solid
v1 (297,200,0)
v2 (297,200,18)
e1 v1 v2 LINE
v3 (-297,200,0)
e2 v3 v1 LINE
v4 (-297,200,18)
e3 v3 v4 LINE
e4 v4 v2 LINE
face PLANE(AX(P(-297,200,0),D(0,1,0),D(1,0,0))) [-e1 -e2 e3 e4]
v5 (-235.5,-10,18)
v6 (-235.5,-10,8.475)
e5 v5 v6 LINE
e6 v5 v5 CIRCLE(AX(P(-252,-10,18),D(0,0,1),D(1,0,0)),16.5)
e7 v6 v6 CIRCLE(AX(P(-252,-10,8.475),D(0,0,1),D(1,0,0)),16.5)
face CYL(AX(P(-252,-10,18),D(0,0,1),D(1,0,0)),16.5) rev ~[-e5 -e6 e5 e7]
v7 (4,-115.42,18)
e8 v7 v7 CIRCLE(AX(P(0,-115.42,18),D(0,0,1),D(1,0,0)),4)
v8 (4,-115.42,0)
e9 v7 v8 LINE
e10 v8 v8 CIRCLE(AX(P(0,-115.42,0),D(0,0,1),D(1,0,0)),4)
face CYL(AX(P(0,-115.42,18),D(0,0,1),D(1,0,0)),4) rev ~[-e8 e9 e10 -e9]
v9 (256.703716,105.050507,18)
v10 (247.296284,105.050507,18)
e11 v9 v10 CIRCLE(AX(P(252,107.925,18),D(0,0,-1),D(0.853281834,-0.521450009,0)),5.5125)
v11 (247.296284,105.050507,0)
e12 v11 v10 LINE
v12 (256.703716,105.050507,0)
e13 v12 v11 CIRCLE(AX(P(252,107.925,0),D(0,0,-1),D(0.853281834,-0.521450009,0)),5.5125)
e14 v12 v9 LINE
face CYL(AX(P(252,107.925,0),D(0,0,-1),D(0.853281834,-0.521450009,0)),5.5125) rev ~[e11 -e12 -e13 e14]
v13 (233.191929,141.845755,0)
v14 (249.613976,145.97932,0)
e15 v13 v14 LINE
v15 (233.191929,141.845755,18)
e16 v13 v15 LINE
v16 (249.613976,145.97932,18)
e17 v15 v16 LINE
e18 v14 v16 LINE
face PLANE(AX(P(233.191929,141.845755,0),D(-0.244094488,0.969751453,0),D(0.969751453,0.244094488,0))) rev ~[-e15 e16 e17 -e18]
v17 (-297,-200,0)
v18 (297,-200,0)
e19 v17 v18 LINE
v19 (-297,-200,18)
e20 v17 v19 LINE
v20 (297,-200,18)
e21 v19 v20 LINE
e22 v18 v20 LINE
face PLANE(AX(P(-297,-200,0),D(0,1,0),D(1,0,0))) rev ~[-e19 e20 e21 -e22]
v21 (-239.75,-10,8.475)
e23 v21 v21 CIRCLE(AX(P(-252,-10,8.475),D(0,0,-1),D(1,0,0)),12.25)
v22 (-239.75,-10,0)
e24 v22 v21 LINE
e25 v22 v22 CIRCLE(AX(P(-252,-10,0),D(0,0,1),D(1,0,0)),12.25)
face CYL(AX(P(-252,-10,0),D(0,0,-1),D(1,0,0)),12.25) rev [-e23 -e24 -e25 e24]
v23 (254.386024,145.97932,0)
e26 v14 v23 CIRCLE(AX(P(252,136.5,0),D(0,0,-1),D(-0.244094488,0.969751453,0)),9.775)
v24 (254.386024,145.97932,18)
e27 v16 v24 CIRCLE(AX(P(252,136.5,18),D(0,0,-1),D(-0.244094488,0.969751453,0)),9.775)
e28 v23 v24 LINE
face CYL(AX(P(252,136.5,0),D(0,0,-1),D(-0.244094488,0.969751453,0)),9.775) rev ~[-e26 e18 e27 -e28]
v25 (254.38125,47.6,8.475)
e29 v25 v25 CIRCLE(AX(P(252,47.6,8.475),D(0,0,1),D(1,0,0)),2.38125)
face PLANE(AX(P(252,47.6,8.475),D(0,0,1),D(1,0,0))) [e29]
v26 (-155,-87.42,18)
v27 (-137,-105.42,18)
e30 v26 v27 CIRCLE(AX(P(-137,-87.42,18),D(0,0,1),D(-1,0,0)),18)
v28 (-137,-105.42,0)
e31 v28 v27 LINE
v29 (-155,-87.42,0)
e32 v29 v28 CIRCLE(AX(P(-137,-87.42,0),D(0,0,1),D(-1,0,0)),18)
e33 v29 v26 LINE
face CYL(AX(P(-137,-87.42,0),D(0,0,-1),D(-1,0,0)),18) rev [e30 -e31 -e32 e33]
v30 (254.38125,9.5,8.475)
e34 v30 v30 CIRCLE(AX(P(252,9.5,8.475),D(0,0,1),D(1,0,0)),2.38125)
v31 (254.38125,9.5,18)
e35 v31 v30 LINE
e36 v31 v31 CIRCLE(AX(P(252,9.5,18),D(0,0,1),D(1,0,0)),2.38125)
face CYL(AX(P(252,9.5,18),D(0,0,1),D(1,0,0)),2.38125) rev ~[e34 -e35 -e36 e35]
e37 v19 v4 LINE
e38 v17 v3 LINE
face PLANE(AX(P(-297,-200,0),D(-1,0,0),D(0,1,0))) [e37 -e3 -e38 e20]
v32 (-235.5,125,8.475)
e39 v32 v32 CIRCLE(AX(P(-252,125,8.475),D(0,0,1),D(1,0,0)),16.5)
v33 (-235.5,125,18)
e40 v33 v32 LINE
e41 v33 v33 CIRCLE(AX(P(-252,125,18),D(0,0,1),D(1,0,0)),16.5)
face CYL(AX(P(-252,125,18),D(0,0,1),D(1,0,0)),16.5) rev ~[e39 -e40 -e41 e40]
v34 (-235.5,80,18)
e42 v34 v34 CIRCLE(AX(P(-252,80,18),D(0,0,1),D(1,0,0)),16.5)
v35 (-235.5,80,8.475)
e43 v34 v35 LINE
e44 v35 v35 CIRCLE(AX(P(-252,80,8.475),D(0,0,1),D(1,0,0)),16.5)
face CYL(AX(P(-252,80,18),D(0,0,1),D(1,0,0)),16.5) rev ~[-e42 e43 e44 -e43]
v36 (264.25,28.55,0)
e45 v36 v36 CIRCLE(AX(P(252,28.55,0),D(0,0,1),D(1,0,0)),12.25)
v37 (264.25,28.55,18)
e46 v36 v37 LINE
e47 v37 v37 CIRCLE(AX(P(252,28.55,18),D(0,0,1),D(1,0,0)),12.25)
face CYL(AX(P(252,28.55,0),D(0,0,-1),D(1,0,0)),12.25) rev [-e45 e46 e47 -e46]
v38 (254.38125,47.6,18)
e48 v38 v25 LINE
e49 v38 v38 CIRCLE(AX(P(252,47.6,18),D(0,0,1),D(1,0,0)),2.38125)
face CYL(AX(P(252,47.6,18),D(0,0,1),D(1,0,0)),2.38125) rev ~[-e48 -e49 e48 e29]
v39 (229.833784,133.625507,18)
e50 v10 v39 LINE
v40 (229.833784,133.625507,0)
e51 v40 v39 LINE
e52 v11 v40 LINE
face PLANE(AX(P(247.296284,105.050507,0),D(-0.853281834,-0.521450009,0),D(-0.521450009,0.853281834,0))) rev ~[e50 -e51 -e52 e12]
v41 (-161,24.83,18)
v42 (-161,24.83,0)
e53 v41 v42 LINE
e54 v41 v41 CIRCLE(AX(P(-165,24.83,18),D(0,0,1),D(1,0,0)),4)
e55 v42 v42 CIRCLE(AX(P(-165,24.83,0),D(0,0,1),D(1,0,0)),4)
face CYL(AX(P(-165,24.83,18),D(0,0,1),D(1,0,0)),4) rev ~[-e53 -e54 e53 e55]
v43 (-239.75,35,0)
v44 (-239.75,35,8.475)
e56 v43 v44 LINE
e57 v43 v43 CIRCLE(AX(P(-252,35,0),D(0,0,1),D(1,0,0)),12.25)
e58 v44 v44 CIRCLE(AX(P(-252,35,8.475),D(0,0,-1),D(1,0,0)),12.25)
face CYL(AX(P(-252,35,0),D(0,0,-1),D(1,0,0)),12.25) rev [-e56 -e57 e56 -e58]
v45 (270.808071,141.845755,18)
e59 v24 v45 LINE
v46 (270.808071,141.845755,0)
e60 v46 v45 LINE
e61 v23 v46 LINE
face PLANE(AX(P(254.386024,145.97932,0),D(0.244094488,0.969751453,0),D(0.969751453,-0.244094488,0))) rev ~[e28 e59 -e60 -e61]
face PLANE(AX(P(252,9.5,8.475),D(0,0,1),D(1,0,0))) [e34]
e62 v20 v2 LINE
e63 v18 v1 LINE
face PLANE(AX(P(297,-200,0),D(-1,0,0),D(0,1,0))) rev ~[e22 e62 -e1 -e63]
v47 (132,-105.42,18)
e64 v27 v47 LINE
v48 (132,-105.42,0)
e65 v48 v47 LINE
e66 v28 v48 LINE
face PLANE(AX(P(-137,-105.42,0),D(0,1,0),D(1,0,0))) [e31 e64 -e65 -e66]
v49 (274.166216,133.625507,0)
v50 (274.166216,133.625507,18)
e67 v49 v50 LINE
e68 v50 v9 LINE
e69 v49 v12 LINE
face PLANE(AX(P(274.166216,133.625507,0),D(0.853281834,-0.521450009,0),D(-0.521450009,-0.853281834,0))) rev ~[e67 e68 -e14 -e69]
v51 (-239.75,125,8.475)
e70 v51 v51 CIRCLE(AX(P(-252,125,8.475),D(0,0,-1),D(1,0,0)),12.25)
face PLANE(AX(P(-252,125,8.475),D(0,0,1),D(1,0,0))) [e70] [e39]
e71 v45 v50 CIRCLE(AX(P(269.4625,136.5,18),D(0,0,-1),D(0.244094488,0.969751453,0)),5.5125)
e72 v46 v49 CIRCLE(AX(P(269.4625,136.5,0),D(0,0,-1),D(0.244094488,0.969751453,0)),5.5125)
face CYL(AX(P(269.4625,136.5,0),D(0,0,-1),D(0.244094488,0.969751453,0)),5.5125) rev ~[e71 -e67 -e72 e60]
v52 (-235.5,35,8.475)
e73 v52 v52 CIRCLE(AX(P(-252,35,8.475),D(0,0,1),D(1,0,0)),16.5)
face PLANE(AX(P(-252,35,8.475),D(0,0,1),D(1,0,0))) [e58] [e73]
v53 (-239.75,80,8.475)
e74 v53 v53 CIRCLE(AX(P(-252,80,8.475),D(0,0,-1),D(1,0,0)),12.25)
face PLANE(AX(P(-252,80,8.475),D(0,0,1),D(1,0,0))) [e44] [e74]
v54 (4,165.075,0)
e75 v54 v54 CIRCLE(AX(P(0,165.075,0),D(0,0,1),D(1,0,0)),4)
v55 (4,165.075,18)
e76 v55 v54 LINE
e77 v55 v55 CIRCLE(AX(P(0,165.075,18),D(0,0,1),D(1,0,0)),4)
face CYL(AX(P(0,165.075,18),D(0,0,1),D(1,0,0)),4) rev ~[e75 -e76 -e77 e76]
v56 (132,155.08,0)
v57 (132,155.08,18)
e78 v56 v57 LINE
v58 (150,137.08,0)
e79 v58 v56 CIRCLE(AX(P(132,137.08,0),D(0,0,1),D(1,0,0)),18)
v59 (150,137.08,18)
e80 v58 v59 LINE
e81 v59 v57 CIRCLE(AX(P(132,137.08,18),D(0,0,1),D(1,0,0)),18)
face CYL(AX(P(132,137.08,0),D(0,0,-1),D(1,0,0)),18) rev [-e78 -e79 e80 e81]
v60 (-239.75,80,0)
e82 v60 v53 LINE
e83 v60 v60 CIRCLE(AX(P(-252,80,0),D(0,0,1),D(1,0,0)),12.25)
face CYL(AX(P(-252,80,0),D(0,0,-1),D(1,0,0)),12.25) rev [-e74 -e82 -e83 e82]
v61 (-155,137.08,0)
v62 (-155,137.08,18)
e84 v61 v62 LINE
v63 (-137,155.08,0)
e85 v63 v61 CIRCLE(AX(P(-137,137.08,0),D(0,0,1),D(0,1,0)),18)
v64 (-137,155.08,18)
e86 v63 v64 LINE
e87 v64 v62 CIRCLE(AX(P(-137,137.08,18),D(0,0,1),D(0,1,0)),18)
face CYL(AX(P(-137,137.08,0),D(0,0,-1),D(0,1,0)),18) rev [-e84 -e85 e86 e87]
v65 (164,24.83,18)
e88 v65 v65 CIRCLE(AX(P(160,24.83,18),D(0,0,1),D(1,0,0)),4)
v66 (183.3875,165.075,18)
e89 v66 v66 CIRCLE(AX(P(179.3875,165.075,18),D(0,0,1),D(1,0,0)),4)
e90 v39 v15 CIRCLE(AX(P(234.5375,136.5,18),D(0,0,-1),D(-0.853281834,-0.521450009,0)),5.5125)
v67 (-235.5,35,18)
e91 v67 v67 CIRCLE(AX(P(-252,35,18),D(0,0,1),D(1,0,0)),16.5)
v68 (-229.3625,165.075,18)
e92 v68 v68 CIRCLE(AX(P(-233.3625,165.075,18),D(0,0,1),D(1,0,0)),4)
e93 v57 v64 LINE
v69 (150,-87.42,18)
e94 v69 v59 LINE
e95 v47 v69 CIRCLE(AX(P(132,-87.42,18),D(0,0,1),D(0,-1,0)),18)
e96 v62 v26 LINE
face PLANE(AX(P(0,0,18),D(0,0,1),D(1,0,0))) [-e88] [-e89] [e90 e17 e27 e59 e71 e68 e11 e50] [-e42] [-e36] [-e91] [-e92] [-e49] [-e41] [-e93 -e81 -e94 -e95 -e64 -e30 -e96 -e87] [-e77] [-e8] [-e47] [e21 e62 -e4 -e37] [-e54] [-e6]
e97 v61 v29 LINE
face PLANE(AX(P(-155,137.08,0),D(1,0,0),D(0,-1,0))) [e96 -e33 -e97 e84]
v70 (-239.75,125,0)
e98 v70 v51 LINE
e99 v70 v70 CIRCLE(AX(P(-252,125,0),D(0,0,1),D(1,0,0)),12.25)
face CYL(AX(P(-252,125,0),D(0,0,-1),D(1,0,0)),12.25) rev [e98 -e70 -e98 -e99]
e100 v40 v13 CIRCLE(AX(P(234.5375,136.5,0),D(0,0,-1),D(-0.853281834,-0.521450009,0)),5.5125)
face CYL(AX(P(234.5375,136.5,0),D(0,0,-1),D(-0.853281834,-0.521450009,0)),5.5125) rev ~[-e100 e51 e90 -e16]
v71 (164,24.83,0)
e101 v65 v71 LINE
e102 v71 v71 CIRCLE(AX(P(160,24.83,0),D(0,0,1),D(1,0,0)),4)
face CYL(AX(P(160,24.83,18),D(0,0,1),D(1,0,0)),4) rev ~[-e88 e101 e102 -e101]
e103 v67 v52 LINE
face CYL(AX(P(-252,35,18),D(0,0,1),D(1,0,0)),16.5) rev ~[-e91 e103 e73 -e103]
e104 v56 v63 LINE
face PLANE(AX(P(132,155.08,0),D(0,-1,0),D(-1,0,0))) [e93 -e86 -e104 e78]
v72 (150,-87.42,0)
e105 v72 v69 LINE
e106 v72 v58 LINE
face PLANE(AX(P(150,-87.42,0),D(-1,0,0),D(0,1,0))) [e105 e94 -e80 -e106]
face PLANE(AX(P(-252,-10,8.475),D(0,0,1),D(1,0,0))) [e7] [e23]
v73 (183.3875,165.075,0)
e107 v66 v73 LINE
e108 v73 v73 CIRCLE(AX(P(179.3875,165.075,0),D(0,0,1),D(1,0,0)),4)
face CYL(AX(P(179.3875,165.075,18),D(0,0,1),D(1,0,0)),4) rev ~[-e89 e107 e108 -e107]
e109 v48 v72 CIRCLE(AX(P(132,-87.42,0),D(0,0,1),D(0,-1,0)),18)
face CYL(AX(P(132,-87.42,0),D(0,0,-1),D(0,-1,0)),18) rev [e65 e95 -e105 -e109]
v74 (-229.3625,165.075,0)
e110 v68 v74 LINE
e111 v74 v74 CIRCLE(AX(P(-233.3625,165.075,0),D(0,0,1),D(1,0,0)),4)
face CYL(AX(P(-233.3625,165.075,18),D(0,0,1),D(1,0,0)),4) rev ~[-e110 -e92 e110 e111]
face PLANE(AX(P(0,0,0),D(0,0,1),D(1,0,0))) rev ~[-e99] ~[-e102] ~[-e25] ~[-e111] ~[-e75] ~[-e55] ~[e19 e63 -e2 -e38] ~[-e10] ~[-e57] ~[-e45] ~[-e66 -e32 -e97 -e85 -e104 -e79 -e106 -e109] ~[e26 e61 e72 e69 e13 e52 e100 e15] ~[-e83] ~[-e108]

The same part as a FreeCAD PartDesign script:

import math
import FreeCAD as App
import Part
import Sketcher
from FreeCAD import Vector

doc = App.newDocument("Part")
body = doc.addObject("PartDesign::Body", "Body")

sketch1 = body.newObject("Sketcher::SketchObject", "Sketch")
sketch1.AttachmentSupport = (doc.getObject("XY_Plane"), [""])
sketch1.MapMode = "FlatFace"
sketch1.addGeometry([
    Part.LineSegment(Vector(-297, 200, 0), Vector(-297, -200, 0)),
    Part.LineSegment(Vector(-297, -200, 0), Vector(297, -200, 0)),
    Part.LineSegment(Vector(297, -200, 0), Vector(297, 200, 0)),
    Part.LineSegment(Vector(297, 200, 0), Vector(-297, 200, 0)),
    Part.Circle(Vector(-252, -10, 0), Vector(0, 0, 1), 12.2),
    Part.Circle(Vector(-252, 35, 0), Vector(0, 0, 1), 12.2),
    Part.Circle(Vector(-252, 80, 0), Vector(0, 0, 1), 12.2),
    Part.LineSegment(Vector(132, -105.4, 0), Vector(-137, -105.4, 0)),
    Part.ArcOfCircle(Part.Circle(Vector(-137, -87.4, 0), Vector(0, 0, 1), 18), math.radians(-180), math.radians(-90)),
    Part.LineSegment(Vector(-155, -87.4, 0), Vector(-155, 137.1, 0)),
    Part.ArcOfCircle(Part.Circle(Vector(-137, 137.1, 0), Vector(0, 0, 1), 18), math.radians(90), math.radians(180)),
    Part.LineSegment(Vector(-137, 155.1, 0), Vector(132, 155.1, 0)),
    Part.ArcOfCircle(Part.Circle(Vector(132, 137.1, 0), Vector(0, 0, 1), 18), math.radians(0), math.radians(90)),
    Part.LineSegment(Vector(150, 137.1, 0), Vector(150, -87.4, 0)),
    Part.ArcOfCircle(Part.Circle(Vector(132, -87.4, 0), Vector(0, 0, 1), 18), math.radians(-90), math.radians(0)),
    Part.Circle(Vector(-252, 125, 0), Vector(0, 0, 1), 12.2),
    Part.Circle(Vector(252, 28.6, 0), Vector(0, 0, 1), 12.2),
    Part.ArcOfCircle(Part.Circle(Vector(252, 136.5, 0), Vector(0, 0, 1), 9.8), math.radians(76), math.radians(104)),
    Part.LineSegment(Vector(254.4, 146, 0), Vector(270.8, 141.8, 0)),
    Part.ArcOfCircle(Part.Circle(Vector(269.5, 136.5, 0), Vector(0, 0, 1), 5.5), math.radians(-31), math.radians(76)),
    Part.LineSegment(Vector(274.2, 133.6, 0), Vector(256.7, 105.1, 0)),
    Part.ArcOfCircle(Part.Circle(Vector(252, 107.9, 0), Vector(0, 0, 1), 5.5), math.radians(-149), math.radians(-31)),
    Part.LineSegment(Vector(247.3, 105.1, 0), Vector(229.8, 133.6, 0)),
    Part.ArcOfCircle(Part.Circle(Vector(234.5, 136.5, 0), Vector(0, 0, 1), 5.5), math.radians(104), math.radians(211)),
    Part.LineSegment(Vector(233.2, 141.8, 0), Vector(249.6, 146, 0)),
], False)
sketch1.addConstraint([
    Sketcher.Constraint("Coincident", 0, 2, 1, 1),
    Sketcher.Constraint("Coincident", 1, 2, 2, 1),
    Sketcher.Constraint("Coincident", 2, 2, 3, 1),
    Sketcher.Constraint("Coincident", 3, 2, 0, 1),
    Sketcher.Constraint("Tangent", 7, 2, 8, 2),
    Sketcher.Constraint("Tangent", 8, 1, 9, 1),
    Sketcher.Constraint("Tangent", 9, 2, 10, 2),
    Sketcher.Constraint("Tangent", 10, 1, 11, 1),
    Sketcher.Constraint("Tangent", 11, 2, 12, 2),
    Sketcher.Constraint("Tangent", 12, 1, 13, 1),
    Sketcher.Constraint("Tangent", 13, 2, 14, 2),
    Sketcher.Constraint("Tangent", 14, 1, 7, 1),
    Sketcher.Constraint("Tangent", 17, 1, 18, 1),
    Sketcher.Constraint("Tangent", 18, 2, 19, 2),
    Sketcher.Constraint("Tangent", 19, 1, 20, 1),
    Sketcher.Constraint("Tangent", 20, 2, 21, 2),
    Sketcher.Constraint("Tangent", 21, 1, 22, 1),
    Sketcher.Constraint("Tangent", 22, 2, 23, 2),
    Sketcher.Constraint("Tangent", 23, 1, 24, 1),
    Sketcher.Constraint("Tangent", 24, 2, 17, 2),
    Sketcher.Constraint("Vertical", 0),
    Sketcher.Constraint("Horizontal", 1),
    Sketcher.Constraint("Vertical", 2),
    Sketcher.Constraint("Horizontal", 3),
    Sketcher.Constraint("Horizontal", 7),
    Sketcher.Constraint("Vertical", 9),
    Sketcher.Constraint("Horizontal", 11),
    Sketcher.Constraint("Vertical", 13),
    Sketcher.Constraint("Equal", 4, 5),
    Sketcher.Constraint("Equal", 5, 6),
    Sketcher.Constraint("Equal", 8, 10),
    Sketcher.Constraint("Equal", 10, 12),
    Sketcher.Constraint("Equal", 12, 14),
    Sketcher.Constraint("Equal", 6, 15),
    Sketcher.Constraint("Equal", 15, 16),
    Sketcher.Constraint("Equal", 19, 21),
    Sketcher.Constraint("Equal", 21, 23),
    Sketcher.Constraint("Symmetric", 0, 2, 2, 2, -1, 1),
    Sketcher.Constraint("Horizontal", 17, 3, 19, 3),
    Sketcher.Constraint("Horizontal", 19, 3, 23, 3),
    Sketcher.Constraint("Horizontal", 20, 2, 21, 1),
    Sketcher.Constraint("Horizontal", 18, 2, 23, 1),
    Sketcher.Constraint("Vertical", 4, 3, 5, 3),
    Sketcher.Constraint("Vertical", 5, 3, 6, 3),
    Sketcher.Constraint("Vertical", 6, 3, 15, 3),
    Sketcher.Constraint("Vertical", 16, 3, 17, 3),
    Sketcher.Constraint("Radius", 8, 18.0),
    Sketcher.Constraint("Diameter", 4, 24.5),
    Sketcher.Constraint("DistanceX", 1, 1, 1, 2, 594.0),
    Sketcher.Constraint("DistanceX", 7, 2, 7, 1, 269.0),
    Sketcher.Constraint("DistanceY", 0, 2, 0, 1, 400.0),
    Sketcher.Constraint("DistanceY", 9, 1, 9, 2, 224.5),
    Sketcher.Constraint("DistanceX", 4, 3, -1, 1, 252.0),
    Sketcher.Constraint("DistanceY", 4, 3, -1, 1, 10.0),
    Sketcher.Constraint("DistanceY", -1, 1, 5, 3, 35.0),
    Sketcher.Constraint("DistanceY", -1, 1, 6, 3, 80.0),
    Sketcher.Constraint("DistanceX", 8, 3, -1, 1, 137.0),
    Sketcher.Constraint("DistanceY", -1, 1, 15, 3, 125.0),
    Sketcher.Constraint("DistanceX", -1, 1, 16, 3, 252.0),
    Sketcher.Constraint("Radius", 17, 9.775),
    Sketcher.Constraint("DistanceY", -1, 1, 17, 3, 136.5),
    Sketcher.Constraint("Radius", 19, 5.5125),
    Sketcher.Constraint("DistanceY", 8, 3, -1, 1, 87.42),
    Sketcher.Constraint("DistanceY", -1, 1, 16, 3, 28.55),
    Sketcher.Constraint("DistanceY", -1, 1, 21, 3, 107.925),
    Sketcher.Constraint("DistanceX", 23, 3, 19, 3, 34.925),
])
pad1 = body.newObject("PartDesign::Pad", "Pad")
pad1.Profile = sketch1
pad1.Length = 18

sketch2 = body.newObject("Sketcher::SketchObject", "Sketch001")
sketch2.AttachmentSupport = (doc.getObject("XY_Plane"), [""])
sketch2.MapMode = "FlatFace"
sketch2.AttachmentOffset = App.Placement(Vector(0, 0, 18), App.Rotation())
sketch2.addGeometry([
    Part.Circle(Vector(-252, 125, 0), Vector(0, 0, 1), 16),
    Part.Circle(Vector(-252, 80, 0), Vector(0, 0, 1), 16),
    Part.Circle(Vector(-252, 35, 0), Vector(0, 0, 1), 16),
    Part.Circle(Vector(-252, -10, 0), Vector(0, 0, 1), 16),
], False)
sketch2.addConstraint([
    Sketcher.Constraint("Equal", 0, 1),
    Sketcher.Constraint("Equal", 1, 2),
    Sketcher.Constraint("Equal", 2, 3),
    Sketcher.Constraint("Vertical", 0, 3, 1, 3),
    Sketcher.Constraint("Vertical", 1, 3, 2, 3),
    Sketcher.Constraint("Vertical", 2, 3, 3, 3),
    Sketcher.Constraint("Diameter", 0, 33.0),
    Sketcher.Constraint("DistanceX", 0, 3, -1, 1, 252.0),
    Sketcher.Constraint("DistanceY", -1, 1, 0, 3, 125.0),
    Sketcher.Constraint("DistanceY", -1, 1, 1, 3, 80.0),
    Sketcher.Constraint("DistanceY", -1, 1, 2, 3, 35.0),
    Sketcher.Constraint("DistanceY", 3, 3, -1, 1, 10.0),
])
pocket1 = body.newObject("PartDesign::Pocket", "Pocket")
pocket1.Profile = sketch2
pocket1.Length = 9.525

sketch3 = body.newObject("Sketcher::SketchObject", "Sketch002")
sketch3.AttachmentSupport = (doc.getObject("XY_Plane"), [""])
sketch3.MapMode = "FlatFace"
sketch3.AttachmentOffset = App.Placement(Vector(0, 0, 18), App.Rotation())
sketch3.addGeometry([
    Part.Circle(Vector(0, 165.1, 0), Vector(0, 0, 1), 4),
    Part.Circle(Vector(-233.4, 165.1, 0), Vector(0, 0, 1), 4),
    Part.Circle(Vector(179.4, 165.1, 0), Vector(0, 0, 1), 4),
    Part.Circle(Vector(0, -115.4, 0), Vector(0, 0, 1), 4),
    Part.Circle(Vector(-165, 24.8, 0), Vector(0, 0, 1), 4),
    Part.Circle(Vector(160, 24.8, 0), Vector(0, 0, 1), 4),
], False)
sketch3.addConstraint([
    Sketcher.Constraint("Equal", 0, 1),
    Sketcher.Constraint("Equal", 1, 2),
    Sketcher.Constraint("Equal", 2, 3),
    Sketcher.Constraint("Equal", 3, 4),
    Sketcher.Constraint("Equal", 4, 5),
    Sketcher.Constraint("PointOnObject", 0, 3, -2),
    Sketcher.Constraint("PointOnObject", 3, 3, -2),
    Sketcher.Constraint("Horizontal", 0, 3, 1, 3),
    Sketcher.Constraint("Horizontal", 1, 3, 2, 3),
    Sketcher.Constraint("Horizontal", 4, 3, 5, 3),
    Sketcher.Constraint("Diameter", 0, 8.0),
    Sketcher.Constraint("DistanceX", 4, 3, -1, 1, 165.0),
    Sketcher.Constraint("DistanceX", -1, 1, 5, 3, 160.0),
    Sketcher.Constraint("DistanceY", 3, 3, -1, 1, 115.42),
    Sketcher.Constraint("DistanceY", -1, 1, 4, 3, 24.83),
    Sketcher.Constraint("DistanceX", 1, 3, 2, 3, 412.75),
    Sketcher.Constraint("DistanceY", -1, 1, 0, 3, 165.075),
    Sketcher.Constraint("DistanceX", 1, 3, -1, 1, 233.3625),
])
pocket2 = body.newObject("PartDesign::Pocket", "Pocket001")
pocket2.Profile = sketch3
pocket2.Length = 80

sketch4 = body.newObject("Sketcher::SketchObject", "Sketch003")
sketch4.AttachmentSupport = (doc.getObject("XY_Plane"), [""])
sketch4.MapMode = "FlatFace"
sketch4.AttachmentOffset = App.Placement(Vector(0, 0, 18), App.Rotation())
sketch4.addGeometry([
    Part.Circle(Vector(252, 47.6, 0), Vector(0, 0, 1), 2.4),
    Part.Circle(Vector(252, 9.5, 0), Vector(0, 0, 1), 2.4),
], False)
sketch4.addConstraint([
    Sketcher.Constraint("Equal", 0, 1),
    Sketcher.Constraint("Vertical", 0, 3, 1, 3),
    Sketcher.Constraint("DistanceX", -1, 1, 0, 3, 252.0),
    Sketcher.Constraint("Diameter", 0, 4.7625),
    Sketcher.Constraint("DistanceY", -1, 1, 0, 3, 47.6),
    Sketcher.Constraint("DistanceY", -1, 1, 1, 3, 9.5),
])
pocket3 = body.newObject("PartDesign::Pocket", "Pocket002")
pocket3.Profile = sketch4
pocket3.Length = 9.525

doc.recompute()
